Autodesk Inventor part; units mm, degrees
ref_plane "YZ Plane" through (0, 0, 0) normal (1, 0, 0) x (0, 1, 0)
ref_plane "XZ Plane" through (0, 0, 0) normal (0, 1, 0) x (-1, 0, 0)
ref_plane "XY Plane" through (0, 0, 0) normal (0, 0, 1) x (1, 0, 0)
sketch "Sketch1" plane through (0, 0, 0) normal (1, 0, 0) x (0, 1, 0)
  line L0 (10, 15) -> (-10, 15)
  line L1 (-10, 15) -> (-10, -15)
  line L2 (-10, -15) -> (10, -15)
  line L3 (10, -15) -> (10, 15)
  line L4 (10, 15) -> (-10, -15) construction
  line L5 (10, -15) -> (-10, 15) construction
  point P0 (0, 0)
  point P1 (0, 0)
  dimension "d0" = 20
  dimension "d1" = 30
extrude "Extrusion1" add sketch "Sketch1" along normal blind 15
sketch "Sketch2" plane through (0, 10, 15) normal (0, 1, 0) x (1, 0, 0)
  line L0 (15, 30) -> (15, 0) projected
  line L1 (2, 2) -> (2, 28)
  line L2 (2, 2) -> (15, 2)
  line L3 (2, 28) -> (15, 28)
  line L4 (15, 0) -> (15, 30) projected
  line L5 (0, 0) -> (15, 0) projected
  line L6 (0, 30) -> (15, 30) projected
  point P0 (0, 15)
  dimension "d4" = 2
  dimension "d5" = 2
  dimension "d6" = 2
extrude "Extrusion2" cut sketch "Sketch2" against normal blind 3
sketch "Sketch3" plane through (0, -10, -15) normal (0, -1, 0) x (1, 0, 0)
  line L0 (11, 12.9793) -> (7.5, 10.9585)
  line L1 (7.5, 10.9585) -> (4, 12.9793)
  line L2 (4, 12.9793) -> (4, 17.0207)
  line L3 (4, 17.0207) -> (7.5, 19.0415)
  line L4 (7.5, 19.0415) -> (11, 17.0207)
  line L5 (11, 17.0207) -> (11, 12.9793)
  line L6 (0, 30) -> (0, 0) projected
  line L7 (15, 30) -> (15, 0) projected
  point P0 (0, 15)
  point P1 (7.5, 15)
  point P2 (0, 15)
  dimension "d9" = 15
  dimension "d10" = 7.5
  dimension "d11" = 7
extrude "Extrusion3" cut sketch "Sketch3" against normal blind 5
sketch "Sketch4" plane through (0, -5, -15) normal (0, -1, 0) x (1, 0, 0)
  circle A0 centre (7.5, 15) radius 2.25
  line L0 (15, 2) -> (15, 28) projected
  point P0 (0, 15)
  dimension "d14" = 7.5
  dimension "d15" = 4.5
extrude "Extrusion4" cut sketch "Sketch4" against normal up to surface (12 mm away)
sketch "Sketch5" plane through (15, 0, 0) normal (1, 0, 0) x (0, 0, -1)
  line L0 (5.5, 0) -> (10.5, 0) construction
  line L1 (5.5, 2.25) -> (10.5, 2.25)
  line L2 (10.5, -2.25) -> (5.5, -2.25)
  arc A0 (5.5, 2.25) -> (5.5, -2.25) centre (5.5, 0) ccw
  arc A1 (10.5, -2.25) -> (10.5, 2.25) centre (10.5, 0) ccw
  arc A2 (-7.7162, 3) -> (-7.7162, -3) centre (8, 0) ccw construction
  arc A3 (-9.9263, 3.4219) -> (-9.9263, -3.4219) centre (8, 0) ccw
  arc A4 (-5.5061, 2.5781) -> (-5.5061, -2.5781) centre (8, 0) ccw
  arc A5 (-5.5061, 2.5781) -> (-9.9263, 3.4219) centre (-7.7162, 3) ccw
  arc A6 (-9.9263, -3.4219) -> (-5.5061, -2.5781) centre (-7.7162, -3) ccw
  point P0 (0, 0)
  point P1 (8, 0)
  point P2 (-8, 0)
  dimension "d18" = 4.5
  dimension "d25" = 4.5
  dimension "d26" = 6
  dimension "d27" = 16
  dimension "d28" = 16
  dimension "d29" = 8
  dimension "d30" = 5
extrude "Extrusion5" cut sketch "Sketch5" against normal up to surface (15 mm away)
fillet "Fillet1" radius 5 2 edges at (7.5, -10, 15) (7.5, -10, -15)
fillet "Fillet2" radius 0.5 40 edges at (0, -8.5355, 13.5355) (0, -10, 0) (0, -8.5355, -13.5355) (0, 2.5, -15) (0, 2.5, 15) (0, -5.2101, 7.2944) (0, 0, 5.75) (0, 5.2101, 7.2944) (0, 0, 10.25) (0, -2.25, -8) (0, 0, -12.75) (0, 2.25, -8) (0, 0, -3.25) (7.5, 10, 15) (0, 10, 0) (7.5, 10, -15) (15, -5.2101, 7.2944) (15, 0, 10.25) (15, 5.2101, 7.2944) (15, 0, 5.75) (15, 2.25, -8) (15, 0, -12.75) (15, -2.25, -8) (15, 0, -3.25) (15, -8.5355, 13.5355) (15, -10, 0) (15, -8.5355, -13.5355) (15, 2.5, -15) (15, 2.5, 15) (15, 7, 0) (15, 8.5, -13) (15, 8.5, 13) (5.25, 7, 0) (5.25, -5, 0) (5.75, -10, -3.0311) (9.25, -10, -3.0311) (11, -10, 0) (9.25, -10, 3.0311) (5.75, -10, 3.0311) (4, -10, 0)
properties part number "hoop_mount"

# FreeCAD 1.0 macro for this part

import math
import FreeCAD as App
import Part
import Sketcher
from FreeCAD import Vector
Q = App.Units.Quantity


def edges_at(feature, points):
    """Names of the edges that pass closest to the given points."""
    edges = feature.Shape.Edges
    near = lambda p: min(range(len(edges)), key=lambda i: edges[i].distToShape(Part.Vertex(*p))[0])
    return sorted({f"Edge{near(p) + 1}" for p in points})

doc = App.newDocument("Part")
body = doc.addObject("PartDesign::Body", "Body")

# Sketch on YZ plane
sketch1 = body.newObject("Sketcher::SketchObject", "Sketch")
sketch1.AttachmentSupport = (doc.getObject("YZ_Plane"), [""])
sketch1.MapMode = "FlatFace"
sketch1.addGeometry([
    Part.LineSegment(Vector(10, -15, 0), Vector(10, 15, 0)),
    Part.LineSegment(Vector(10, 15, 0), Vector(-10, 15, 0)),
    Part.LineSegment(Vector(-10, 15, 0), Vector(-10, -15, 0)),
    Part.LineSegment(Vector(-10, -15, 0), Vector(10, -15, 0)),
], False)
sketch1.addConstraint([
    Sketcher.Constraint("Coincident", 0, 2, 1, 1),
    Sketcher.Constraint("Coincident", 1, 2, 2, 1),
    Sketcher.Constraint("Coincident", 2, 2, 3, 1),
    Sketcher.Constraint("Coincident", 3, 2, 0, 1),
    Sketcher.Constraint("Vertical", 0),
    Sketcher.Constraint("Horizontal", 1),
    Sketcher.Constraint("Vertical", 2),
    Sketcher.Constraint("Horizontal", 3),
    Sketcher.Constraint("Symmetric", 0, 2, 2, 2, -1, 1),
    Sketcher.Constraint("DistanceX", 1, 2, 1, 1, 20.0),
    Sketcher.Constraint("DistanceY", 0, 1, 0, 2, 30.0),
])
pad1 = body.newObject("PartDesign::Pad", "Pad")
pad1.Profile = sketch1
pad1.Length = 15

# Sketch on XZ plane
sketch2 = body.newObject("Sketcher::SketchObject", "Sketch001")
sketch2.AttachmentSupport = (doc.getObject("XZ_Plane"), [""])
sketch2.MapMode = "FlatFace"
sketch2.AttachmentOffset = App.Placement(Vector(0, 0, -10), App.Rotation())
sketch2.addGeometry([
    Part.LineSegment(Vector(15, 13, 0), Vector(15, -13, 0)),
    Part.LineSegment(Vector(15, -13, 0), Vector(2, -13, 0)),
    Part.LineSegment(Vector(2, -13, 0), Vector(2, 13, 0)),
    Part.LineSegment(Vector(2, 13, 0), Vector(15, 13, 0)),
], False)
sketch2.addConstraint([
    Sketcher.Constraint("Coincident", 0, 2, 1, 1),
    Sketcher.Constraint("Coincident", 1, 2, 2, 1),
    Sketcher.Constraint("Coincident", 2, 2, 3, 1),
    Sketcher.Constraint("Coincident", 3, 2, 0, 1),
    Sketcher.Constraint("Vertical", 0),
    Sketcher.Constraint("Horizontal", 1),
    Sketcher.Constraint("Vertical", 2),
    Sketcher.Constraint("Horizontal", 3),
    Sketcher.Constraint("DistanceX", -1, 1, 1, 2, 2.0),
    Sketcher.Constraint("DistanceX", 1, 2, 1, 1, 13.0),
    Sketcher.Constraint("DistanceY", 0, 2, 0, 1, 26.0),
    Sketcher.Constraint("DistanceY", 0, 2, -1, 1, 13.0),
])
pocket1 = body.newObject("PartDesign::Pocket", "Pocket")
pocket1.Profile = sketch2
pocket1.Length = 3
pocket1.Reversed = True

# Sketch on XZ plane
sketch3 = body.newObject("Sketcher::SketchObject", "Sketch002")
sketch3.AttachmentSupport = (doc.getObject("XZ_Plane"), [""])
sketch3.MapMode = "FlatFace"
sketch3.AttachmentOffset = App.Placement(Vector(0, 0, 10), App.Rotation())
sketch3.addGeometry([
    Part.LineSegment(Vector(7.5, -4, 0), Vector(11, -2, 0)),  # 0
    Part.LineSegment(Vector(11, -2, 0), Vector(11, 2, 0)),  # 1
    Part.LineSegment(Vector(11, 2, 0), Vector(7.5, 4, 0)),  # 2
    Part.LineSegment(Vector(7.5, 4, 0), Vector(4, 2, 0)),  # 3
    Part.LineSegment(Vector(4, 2, 0), Vector(4, -2, 0)),  # 4
    Part.LineSegment(Vector(4, -2, 0), Vector(7.5, -4, 0)),  # 5
], False)
sketch3.addConstraint([
    Sketcher.Constraint("Coincident", 0, 2, 1, 1),
    Sketcher.Constraint("Coincident", 1, 2, 2, 1),
    Sketcher.Constraint("Coincident", 2, 2, 3, 1),
    Sketcher.Constraint("Coincident", 3, 2, 4, 1),
    Sketcher.Constraint("Coincident", 4, 2, 5, 1),
    Sketcher.Constraint("Coincident", 5, 2, 0, 1),
    Sketcher.Constraint("Vertical", 1),
    Sketcher.Constraint("Vertical", 4),
    Sketcher.Constraint("Symmetric", 2, 2, 5, 2, -1),
    Sketcher.Constraint("Parallel", 0, 3),
    Sketcher.Constraint("Parallel", 2, 5),
    Sketcher.Constraint("Horizontal", 1, 2, 3, 2),
    Sketcher.Constraint("Horizontal", 0, 2, 4, 2),
    Sketcher.Constraint("DistanceX", 3, 2, 1, 2, 7.0),
    Sketcher.Constraint("DistanceX", -1, 1, 2, 2, 7.5),
    Sketcher.Constraint("Angle", 0, Q("30.001 deg")),
    Sketcher.Constraint("DistanceY", 1, 1, 1, 2, 4.0414),
])
pocket2 = body.newObject("PartDesign::Pocket", "Pocket001")
pocket2.Profile = sketch3
pocket2.Length = 5

# Sketch on XZ plane
sketch4 = body.newObject("Sketcher::SketchObject", "Sketch003")
sketch4.AttachmentSupport = (doc.getObject("XZ_Plane"), [""])
sketch4.MapMode = "FlatFace"
sketch4.AttachmentOffset = App.Placement(Vector(0, 0, 5), App.Rotation())
sketch4.addGeometry(Part.Circle(Vector(7.5, 0, 0), Vector(0, 0, 1), 2.2), False)
sketch4.addConstraint([
    Sketcher.Constraint("PointOnObject", 0, 3, -1),
    Sketcher.Constraint("Diameter", 0, 4.5),
    Sketcher.Constraint("DistanceX", -1, 1, 0, 3, 7.5),
])
pocket3 = body.newObject("PartDesign::Pocket", "Pocket002")
pocket3.Profile = sketch4
pocket3.Length = 12

# Sketch on YZ plane
sketch5 = body.newObject("Sketcher::SketchObject", "Sketch004")
sketch5.AttachmentSupport = (doc.getObject("YZ_Plane"), [""])
sketch5.MapMode = "FlatFace"
sketch5.AttachmentOffset = App.Placement(Vector(0, 0, 15), App.Rotation())
sketch5.addGeometry([
    Part.LineSegment(Vector(2.2, -10.5, 0), Vector(2.2, -5.5, 0)),  # 0
    Part.ArcOfCircle(Part.Circle(Vector(0, -5.5, 0), Vector(0, 0, 1), 2.2), math.radians(0), math.radians(180)),  # 1
    Part.LineSegment(Vector(-2.2, -5.5, 0), Vector(-2.2, -10.5, 0)),  # 2
    Part.ArcOfCircle(Part.Circle(Vector(0, -10.5, 0), Vector(0, 0, 1), 2.2), math.radians(180), math.radians(360)),  # 3
    Part.ArcOfCircle(Part.Circle(Vector(3, 7.7, 0), Vector(0, 0, 1), 2.3), math.radians(-101), math.radians(79)),  # 4
    Part.ArcOfCircle(Part.Circle(Vector(0, -8, 0), Vector(0, 0, 1), 18.2), math.radians(79), math.radians(101)),  # 5
    Part.ArcOfCircle(Part.Circle(Vector(-3, 7.7, 0), Vector(0, 0, 1), 2.3), math.radians(101), math.radians(281)),  # 6
    Part.ArcOfCircle(Part.Circle(Vector(0, -8, 0), Vector(0, 0, 1), 13.7), math.radians(79), math.radians(101)),  # 7
], False)
sketch5.addConstraint([
    Sketcher.Constraint("Tangent", 0, 2, 1, 1),
    Sketcher.Constraint("Tangent", 1, 2, 2, 1),
    Sketcher.Constraint("Tangent", 2, 2, 3, 1),
    Sketcher.Constraint("Tangent", 3, 2, 0, 1),
    Sketcher.Constraint("Tangent", 4, 2, 5, 1),
    Sketcher.Constraint("Tangent", 5, 2, 6, 1),
    Sketcher.Constraint("Tangent", 6, 2, 7, 2),
    Sketcher.Constraint("Tangent", 7, 1, 4, 1),
    Sketcher.Constraint("Vertical", 0),
    Sketcher.Constraint("Vertical", 2),
    Sketcher.Constraint("Coincident", 7, 3, 5, 3),
    Sketcher.Constraint("Equal", 3, 4),
    Sketcher.Constraint("Symmetric", 4, 3, 6, 3, -2),
    Sketcher.Constraint("PointOnObject", 1, 3, -2),
    Sketcher.Constraint("DistanceY", 0, 1, 0, 2, 5.0),
    Sketcher.Constraint("Radius", 1, 2.25),
    Sketcher.Constraint("DistanceY", 5, 3, -1, 1, 8.0),
    Sketcher.Constraint("DistanceX", 6, 3, 4, 3, 6.0),
    Sketcher.Constraint("Radius", 5, 18.25),
    Sketcher.Constraint("DistanceY", 1, 3, -1, 1, 5.5),
])
pocket4 = body.newObject("PartDesign::Pocket", "Pocket003")
pocket4.Profile = sketch5
pocket4.Length = 15
doc.recompute()

fillet = body.newObject("PartDesign::Fillet", "Fillet")
fillet.Base = (pocket4, edges_at(pocket4, [(7.5, -10, 15), (7.5, -10, -15)]))
fillet.Radius = 5
doc.recompute()

fillet2 = body.newObject("PartDesign::Fillet", "Fillet001")
fillet2.Base = (fillet, edges_at(fillet, [
    (0, -8.536, 13.536),
    (0, -10, 0),
    (0, -8.536, -13.536),
    (0, 2.5, -15),
    (0, 2.5, 15),
    (0, -5.21, 7.294),
    (0, 0, 5.75),
    (0, 5.21, 7.294),
    (0, 0, 10.25),
    (0, -2.25, -8),
    (0, 0, -12.75),
    (0, 2.25, -8),
    (0, 0, -3.25),
    (7.5, 10, 15),
    (0, 10, 0),
    (7.5, 10, -15),
    (15, -5.21, 7.294),
    (15, 0, 10.25),
    (15, 5.21, 7.294),
    (15, 0, 5.75),
    (15, 2.25, -8),
    (15, 0, -12.75),
    (15, -2.25, -8),
    (15, 0, -3.25),
    (15, -8.536, 13.536),
    (15, -10, 0),
    (15, -8.536, -13.536),
    (15, 2.5, -15),
    (15, 2.5, 15),
    (15, 7, 0),
    (15, 8.5, -13),
    (15, 8.5, 13),
    (5.25, 7, 0),
    (5.25, -5, 0),
    (5.75, -10, -3.031),
    (9.25, -10, -3.031),
    (11, -10, 0),
    (9.25, -10, 3.031),
    (5.75, -10, 3.031),
    (4, -10, 0),
]))
fillet2.Radius = 0.5

doc.recompute()
